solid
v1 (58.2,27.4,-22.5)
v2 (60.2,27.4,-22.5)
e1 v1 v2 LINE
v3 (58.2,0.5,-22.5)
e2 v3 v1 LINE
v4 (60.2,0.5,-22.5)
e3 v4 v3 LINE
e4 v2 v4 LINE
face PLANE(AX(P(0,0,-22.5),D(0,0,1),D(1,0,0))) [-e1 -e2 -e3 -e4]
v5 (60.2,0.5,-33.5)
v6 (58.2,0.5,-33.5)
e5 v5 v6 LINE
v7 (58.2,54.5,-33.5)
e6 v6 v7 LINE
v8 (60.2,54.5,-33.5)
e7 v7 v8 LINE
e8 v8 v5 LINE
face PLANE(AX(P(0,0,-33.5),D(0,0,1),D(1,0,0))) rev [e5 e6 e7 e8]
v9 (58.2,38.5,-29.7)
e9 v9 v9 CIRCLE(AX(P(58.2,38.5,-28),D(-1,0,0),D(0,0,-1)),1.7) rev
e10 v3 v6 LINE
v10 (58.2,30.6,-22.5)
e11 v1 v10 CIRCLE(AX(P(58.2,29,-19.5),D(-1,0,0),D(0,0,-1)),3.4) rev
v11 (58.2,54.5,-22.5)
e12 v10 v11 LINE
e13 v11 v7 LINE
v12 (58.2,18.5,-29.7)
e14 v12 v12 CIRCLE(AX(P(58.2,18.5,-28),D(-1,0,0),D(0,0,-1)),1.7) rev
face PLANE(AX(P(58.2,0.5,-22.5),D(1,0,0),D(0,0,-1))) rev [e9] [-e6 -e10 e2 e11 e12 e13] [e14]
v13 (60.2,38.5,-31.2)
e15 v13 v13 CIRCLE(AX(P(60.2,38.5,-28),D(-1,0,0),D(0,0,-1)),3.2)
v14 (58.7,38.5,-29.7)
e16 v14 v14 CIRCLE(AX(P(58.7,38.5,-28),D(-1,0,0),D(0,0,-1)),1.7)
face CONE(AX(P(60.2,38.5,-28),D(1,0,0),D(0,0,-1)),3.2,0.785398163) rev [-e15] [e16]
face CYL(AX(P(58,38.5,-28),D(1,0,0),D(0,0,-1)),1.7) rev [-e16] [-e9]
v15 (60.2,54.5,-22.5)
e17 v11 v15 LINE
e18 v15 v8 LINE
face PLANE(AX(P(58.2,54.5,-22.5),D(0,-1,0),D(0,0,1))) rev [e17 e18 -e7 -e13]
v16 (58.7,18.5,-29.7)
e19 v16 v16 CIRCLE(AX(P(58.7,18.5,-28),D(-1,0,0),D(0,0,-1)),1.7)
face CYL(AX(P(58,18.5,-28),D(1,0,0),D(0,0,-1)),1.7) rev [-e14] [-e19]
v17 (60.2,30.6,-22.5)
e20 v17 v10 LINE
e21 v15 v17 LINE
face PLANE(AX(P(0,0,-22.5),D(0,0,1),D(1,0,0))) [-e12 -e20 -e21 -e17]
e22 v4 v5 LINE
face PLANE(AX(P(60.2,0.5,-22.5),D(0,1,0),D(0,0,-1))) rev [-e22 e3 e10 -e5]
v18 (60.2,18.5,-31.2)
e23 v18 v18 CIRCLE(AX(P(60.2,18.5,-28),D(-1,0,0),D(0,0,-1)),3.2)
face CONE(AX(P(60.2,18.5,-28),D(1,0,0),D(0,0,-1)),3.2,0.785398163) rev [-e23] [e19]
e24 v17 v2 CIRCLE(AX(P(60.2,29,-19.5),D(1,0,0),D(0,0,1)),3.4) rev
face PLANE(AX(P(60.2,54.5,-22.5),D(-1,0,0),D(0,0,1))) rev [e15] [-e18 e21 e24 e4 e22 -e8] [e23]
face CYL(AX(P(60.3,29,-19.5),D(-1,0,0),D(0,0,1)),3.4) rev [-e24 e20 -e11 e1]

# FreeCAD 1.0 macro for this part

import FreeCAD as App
import Part
import Sketcher
from FreeCAD import Vector
Q = App.Units.Quantity

doc = App.newDocument("Part")
body = doc.addObject("PartDesign::Body", "Body")

sketch1 = doc.addObject("Sketcher::SketchObject", "Sketch")
body.addObject(sketch1)
sketch1.AttachmentSupport = (doc.XY_Plane, [""])
sketch1.MapMode = "FlatFace"
sketch1.AttachmentOffset = App.Placement(Vector(0, 0, -33.5), App.Rotation())
sketch1.addGeometry([
    Part.LineSegment(Vector(58.2, -0.5, 0), Vector(58.2, -54.5, 0)),
    Part.LineSegment(Vector(58.2, -54.5, 0), Vector(60.2, -54.5, 0)),
    Part.LineSegment(Vector(60.2, -54.5, 0), Vector(60.2, -0.5, 0)),
    Part.LineSegment(Vector(60.2, -0.5, 0), Vector(58.2, -0.5, 0)),
], False)
sketch1.addConstraint([
    Sketcher.Constraint("Coincident", 0, 2, 1, 1),
    Sketcher.Constraint("Coincident", 1, 2, 2, 1),
    Sketcher.Constraint("Coincident", 2, 2, 3, 1),
    Sketcher.Constraint("Coincident", 3, 2, 0, 1),
    Sketcher.Constraint("Vertical", 0),
    Sketcher.Constraint("Horizontal", 1),
    Sketcher.Constraint("Vertical", 2),
    Sketcher.Constraint("Horizontal", 3),
    Sketcher.Constraint("DistanceX", 1, 1, 1, 2, Q("2 mm")),
    Sketcher.Constraint("DistanceY", 0, 2, 0, 1, Q("54 mm")),
    Sketcher.Constraint("DistanceX", -1, 1, 0, 2, Q("58.2 mm")),
    Sketcher.Constraint("DistanceY", 0, 2, -1, 1, Q("54.5 mm")),
])
pad1 = doc.addObject("PartDesign::Pad", "Pad")
body.addObject(pad1)
pad1.Profile = sketch1
pad1.Length = 11

sketch2 = doc.addObject("Sketcher::SketchObject", "Sketch001")
body.addObject(sketch2)
sketch2.AttachmentSupport = (doc.YZ_Plane, [""])
sketch2.MapMode = "FlatFace"
sketch2.AttachmentOffset = App.Placement(Vector(0, 0, 58.1), App.Rotation())
sketch2.addGeometry(Part.Circle(Vector(-29, -19.5, 0), Vector(0, 0, 1), 3.4), False)
sketch2.addConstraint([
    Sketcher.Constraint("Diameter", 0, Q("6.8 mm")),
    Sketcher.Constraint("DistanceX", 0, 3, -1, 1, Q("29 mm")),
    Sketcher.Constraint("DistanceY", 0, 3, -1, 1, Q("19.5 mm")),
])
pocket1 = doc.addObject("PartDesign::Pocket", "Pocket")
body.addObject(pocket1)
pocket1.Profile = sketch2
pocket1.Length = 2.2
pocket1.Reversed = True

sketch3 = doc.addObject("Sketcher::SketchObject", "Sketch002")
body.addObject(sketch3)
sketch3.AttachmentSupport = (doc.YZ_Plane, [""])
sketch3.MapMode = "FlatFace"
sketch3.AttachmentOffset = App.Placement(Vector(0, 0, 60.2), App.Rotation())
sketch3.addGeometry(Part.Circle(Vector(-18.5, -28, 0), Vector(0, 0, 1), 1.7), False)
sketch3.addConstraint([
    Sketcher.Constraint("Diameter", 0, Q("3.4 mm")),
    Sketcher.Constraint("DistanceY", 0, 3, -1, 1, Q("28 mm")),
    Sketcher.Constraint("DistanceX", 0, 3, -1, 1, Q("18.5 mm")),
])
pocket2 = doc.addObject("PartDesign::Pocket", "Pocket001")
body.addObject(pocket2)
pocket2.Profile = sketch3
pocket2.Length = 2.2

sketch4 = doc.addObject("Sketcher::SketchObject", "Sketch003")
body.addObject(sketch4)
sketch4.AttachmentSupport = (doc.XY_Plane, [""])
sketch4.MapMode = "FlatFace"
sketch4.AttachmentOffset = App.Placement(Vector(0, 0, -28), App.Rotation())
sketch4.addGeometry([
    Part.LineSegment(Vector(60.2, -18.5, 0), Vector(60.2, -15.3, 0)),
    Part.LineSegment(Vector(60.2, -15.3, 0), Vector(58.7, -16.8, 0)),
    Part.LineSegment(Vector(58.7, -16.8, 0), Vector(58.7, -18.5, 0)),
    Part.LineSegment(Vector(58.7, -18.5, 0), Vector(60.2, -18.5, 0)),
], False)
sketch4.addGeometry(Part.LineSegment(Vector(60.2, -18.5, 0), Vector(58.7, -18.5, 0)), True)
sketch4.addConstraint([
    Sketcher.Constraint("Coincident", 0, 2, 1, 1),
    Sketcher.Constraint("Coincident", 1, 2, 2, 1),
    Sketcher.Constraint("Coincident", 2, 2, 3, 1),
    Sketcher.Constraint("Coincident", 3, 2, 0, 1),
    Sketcher.Constraint("Vertical", 0),
    Sketcher.Constraint("Vertical", 2),
    Sketcher.Constraint("Horizontal", 3),
    Sketcher.Constraint("Horizontal", 4),
    Sketcher.Constraint("Coincident", 4, 1, 3, 2),
    Sketcher.Constraint("Vertical", 1, 2, 4, 2),
    Sketcher.Constraint("Angle", 1, Q("-135 deg")),
    Sketcher.Constraint("DistanceX", 3, 1, 3, 2, Q("1.5 mm")),
    Sketcher.Constraint("DistanceY", 0, 1, 0, 2, Q("3.2 mm")),
    Sketcher.Constraint("DistanceX", -1, 1, 0, 2, Q("60.2 mm")),
    Sketcher.Constraint("DistanceY", 0, 2, -1, 1, Q("15.3 mm")),
])
groove = doc.addObject("PartDesign::Groove", "Groove")
body.addObject(groove)
groove.Profile = sketch4
groove.ReferenceAxis = (sketch4, ["Axis0"])
groove.Angle = 360

sketch5 = doc.addObject("Sketcher::SketchObject", "Sketch004")
body.addObject(sketch5)
sketch5.AttachmentSupport = (doc.YZ_Plane, [""])
sketch5.MapMode = "FlatFace"
sketch5.AttachmentOffset = App.Placement(Vector(0, 0, 60.2), App.Rotation())
sketch5.addGeometry(Part.Circle(Vector(-38.5, -28, 0), Vector(0, 0, 1), 1.7), False)
sketch5.addConstraint([
    Sketcher.Constraint("Diameter", 0, Q("3.4 mm")),
    Sketcher.Constraint("DistanceY", 0, 3, -1, 1, Q("28 mm")),
    Sketcher.Constraint("DistanceX", 0, 3, -1, 1, Q("38.5 mm")),
])
pocket3 = doc.addObject("PartDesign::Pocket", "Pocket002")
body.addObject(pocket3)
pocket3.Profile = sketch5
pocket3.Length = 2.2

sketch6 = doc.addObject("Sketcher::SketchObject", "Sketch005")
body.addObject(sketch6)
sketch6.AttachmentSupport = (doc.XY_Plane, [""])
sketch6.MapMode = "FlatFace"
sketch6.AttachmentOffset = App.Placement(Vector(0, 0, -28), App.Rotation())
sketch6.addGeometry([
    Part.LineSegment(Vector(60.2, -38.5, 0), Vector(60.2, -35.3, 0)),
    Part.LineSegment(Vector(60.2, -35.3, 0), Vector(58.7, -36.8, 0)),
    Part.LineSegment(Vector(58.7, -36.8, 0), Vector(58.7, -38.5, 0)),
    Part.LineSegment(Vector(58.7, -38.5, 0), Vector(60.2, -38.5, 0)),
], False)
sketch6.addGeometry(Part.LineSegment(Vector(60.2, -38.5, 0), Vector(58.7, -38.5, 0)), True)
sketch6.addConstraint([
    Sketcher.Constraint("Coincident", 0, 2, 1, 1),
    Sketcher.Constraint("Coincident", 1, 2, 2, 1),
    Sketcher.Constraint("Coincident", 2, 2, 3, 1),
    Sketcher.Constraint("Coincident", 3, 2, 0, 1),
    Sketcher.Constraint("Vertical", 0),
    Sketcher.Constraint("Vertical", 2),
    Sketcher.Constraint("Horizontal", 3),
    Sketcher.Constraint("Horizontal", 4),
    Sketcher.Constraint("Coincident", 4, 1, 3, 2),
    Sketcher.Constraint("Vertical", 1, 2, 4, 2),
    Sketcher.Constraint("Angle", 1, Q("-135 deg")),
    Sketcher.Constraint("DistanceX", 3, 1, 3, 2, Q("1.5 mm")),
    Sketcher.Constraint("DistanceY", 0, 1, 0, 2, Q("3.2 mm")),
    Sketcher.Constraint("DistanceX", -1, 1, 0, 2, Q("60.2 mm")),
    Sketcher.Constraint("DistanceY", 0, 2, -1, 1, Q("35.3 mm")),
])
groove2 = doc.addObject("PartDesign::Groove", "Groove001")
body.addObject(groove2)
groove2.Profile = sketch6
groove2.ReferenceAxis = (sketch6, ["Axis0"])
groove2.Angle = 360
body2 = doc.addObject("PartDesign::Body", "Body001")
doc.recompute()

mirroring = doc.addObject("Part::Mirroring", "Mirroring")
mirroring.Source = body
mirroring.Base = Vector(0, 0, 0)
mirroring.Normal = Vector(0, -1, 0)
body2.BaseFeature = mirroring
doc.recompute()
body.Visibility = False
mirroring.Visibility = False

doc.recompute()
